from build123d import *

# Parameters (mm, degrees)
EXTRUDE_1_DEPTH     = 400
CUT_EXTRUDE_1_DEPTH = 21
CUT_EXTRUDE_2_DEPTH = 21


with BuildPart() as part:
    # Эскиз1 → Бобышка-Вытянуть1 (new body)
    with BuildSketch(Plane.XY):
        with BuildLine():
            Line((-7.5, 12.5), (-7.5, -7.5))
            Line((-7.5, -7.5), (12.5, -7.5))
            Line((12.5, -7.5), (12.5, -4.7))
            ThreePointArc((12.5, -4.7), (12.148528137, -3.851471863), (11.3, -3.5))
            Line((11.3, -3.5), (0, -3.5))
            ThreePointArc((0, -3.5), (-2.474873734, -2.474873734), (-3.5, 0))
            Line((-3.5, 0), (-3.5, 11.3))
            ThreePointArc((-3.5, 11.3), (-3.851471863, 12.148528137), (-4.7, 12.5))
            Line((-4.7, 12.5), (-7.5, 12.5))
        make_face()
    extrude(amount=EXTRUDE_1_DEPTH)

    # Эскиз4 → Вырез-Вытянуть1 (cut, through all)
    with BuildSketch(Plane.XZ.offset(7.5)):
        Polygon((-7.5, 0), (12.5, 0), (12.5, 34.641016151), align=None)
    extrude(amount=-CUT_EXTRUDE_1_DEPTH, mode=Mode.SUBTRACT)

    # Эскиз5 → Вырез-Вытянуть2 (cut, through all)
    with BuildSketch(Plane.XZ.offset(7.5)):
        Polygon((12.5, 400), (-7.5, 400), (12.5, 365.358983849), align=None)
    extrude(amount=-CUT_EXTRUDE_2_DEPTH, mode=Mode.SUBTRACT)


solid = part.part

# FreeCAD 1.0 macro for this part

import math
import FreeCAD as App
import Part
import Sketcher
from FreeCAD import Vector
Q = App.Units.Quantity

doc = App.newDocument("Part")
body = doc.addObject("PartDesign::Body", "Body")

sketch1 = body.newObject("Sketcher::SketchObject", "Sketch")
sketch1.AttachmentSupport = (doc.getObject("XY_Plane"), [""])
sketch1.MapMode = "FlatFace"
sketch1.addGeometry([
    Part.LineSegment(Vector(-7.5, 12.5, 0), Vector(-7.5, -7.5, 0)),
    Part.LineSegment(Vector(-7.5, -7.5, 0), Vector(12.5, -7.5, 0)),
    Part.LineSegment(Vector(12.5, -7.5, 0), Vector(12.5, -4.7, 0)),
    Part.ArcOfCircle(Part.Circle(Vector(11.3, -4.7, 0), Vector(0, 0, 1), 1.2), math.radians(0), math.radians(90)),
    Part.LineSegment(Vector(11.3, -3.5, 0), Vector(0, -3.5, 0)),
    Part.ArcOfCircle(Part.Circle(Vector(0, 0, 0), Vector(0, 0, 1), 3.5), math.radians(-180), math.radians(-90)),
    Part.LineSegment(Vector(-3.5, 0, 0), Vector(-3.5, 11.3, 0)),
    Part.ArcOfCircle(Part.Circle(Vector(-4.7, 11.3, 0), Vector(0, 0, 1), 1.2), math.radians(0), math.radians(90)),
    Part.LineSegment(Vector(-4.7, 12.5, 0), Vector(-7.5, 12.5, 0)),
], False)
sketch1.addConstraint([
    Sketcher.Constraint("Coincident", 0, 2, 1, 1),
    Sketcher.Constraint("Coincident", 1, 2, 2, 1),
    Sketcher.Constraint("Tangent", 2, 2, 3, 1),
    Sketcher.Constraint("Tangent", 3, 2, 4, 1),
    Sketcher.Constraint("Tangent", 4, 2, 5, 2),
    Sketcher.Constraint("Tangent", 5, 1, 6, 1),
    Sketcher.Constraint("Tangent", 6, 2, 7, 1),
    Sketcher.Constraint("Tangent", 7, 2, 8, 1),
    Sketcher.Constraint("Coincident", 8, 2, 0, 1),
    Sketcher.Constraint("Vertical", 0),
    Sketcher.Constraint("Horizontal", 1),
    Sketcher.Constraint("Vertical", 2),
    Sketcher.Constraint("Horizontal", 4),
    Sketcher.Constraint("Vertical", 6),
    Sketcher.Constraint("Horizontal", 8),
    Sketcher.Constraint("Coincident", 5, 3, -1, 1),
    Sketcher.Constraint("Equal", 3, 7),
    Sketcher.Constraint("Equal", 1, 0),
    Sketcher.Constraint("Equal", 8, 2),
    Sketcher.Constraint("Radius", 3, 1.2),
    Sketcher.Constraint("Radius", 5, 3.5),
    Sketcher.Constraint("DistanceX", 1, 1, 1, 2, 20.0),
    Sketcher.Constraint("DistanceX", 4, 2, 4, 1, 11.3),
])
pad1 = body.newObject("PartDesign::Pad", "Pad")
pad1.Profile = sketch1
pad1.Length = 400

sketch2 = body.newObject("Sketcher::SketchObject", "Sketch001")
sketch2.AttachmentSupport = (doc.getObject("XZ_Plane"), [""])
sketch2.MapMode = "FlatFace"
sketch2.AttachmentOffset = App.Placement(Vector(0, 0, 7.5), App.Rotation())
sketch2.addGeometry([
    Part.LineSegment(Vector(-7.5, 0, 0), Vector(12.5, 0, 0)),
    Part.LineSegment(Vector(12.5, 0, 0), Vector(12.5, 34.641016, 0)),
    Part.LineSegment(Vector(12.5, 34.641016, 0), Vector(-7.5, 0, 0)),
], False)
sketch2.addConstraint([
    Sketcher.Constraint("Coincident", 0, 2, 1, 1),
    Sketcher.Constraint("Coincident", 1, 2, 2, 1),
    Sketcher.Constraint("Coincident", 2, 2, 0, 1),
    Sketcher.Constraint("Horizontal", 0),
    Sketcher.Constraint("Vertical", 1),
    Sketcher.Constraint("PointOnObject", 0, 2, -1),
    Sketcher.Constraint("DistanceX", 0, 1, 0, 2, 20.0),
    Sketcher.Constraint("Angle", 2, Q("-120 deg")),
    Sketcher.Constraint("DistanceX", -1, 1, 0, 2, 12.5),
])
pocket1 = body.newObject("PartDesign::Pocket", "Pocket")
pocket1.Profile = sketch2
pocket1.Type = "ThroughAll"

sketch3 = body.newObject("Sketcher::SketchObject", "Sketch002")
sketch3.AttachmentSupport = (doc.getObject("XZ_Plane"), [""])
sketch3.MapMode = "FlatFace"
sketch3.AttachmentOffset = App.Placement(Vector(0, 0, 7.5), App.Rotation())
sketch3.addGeometry([
    Part.LineSegment(Vector(12.5, 400, 0), Vector(-7.5, 400, 0)),
    Part.LineSegment(Vector(-7.5, 400, 0), Vector(12.5, 365.358984, 0)),
    Part.LineSegment(Vector(12.5, 365.358984, 0), Vector(12.5, 400, 0)),
], False)
sketch3.addConstraint([
    Sketcher.Constraint("Coincident", 0, 2, 1, 1),
    Sketcher.Constraint("Coincident", 1, 2, 2, 1),
    Sketcher.Constraint("Coincident", 2, 2, 0, 1),
    Sketcher.Constraint("Horizontal", 0),
    Sketcher.Constraint("Vertical", 2),
    Sketcher.Constraint("DistanceX", 0, 2, 0, 1, 20.0),
    Sketcher.Constraint("Angle", 1, Q("-60 deg")),
    Sketcher.Constraint("DistanceY", -1, 1, 0, 2, 400.0),
    Sketcher.Constraint("DistanceX", 0, 2, -1, 1, 7.5),
])
pocket2 = body.newObject("PartDesign::Pocket", "Pocket001")
pocket2.Profile = sketch3
pocket2.Type = "ThroughAll"

doc.recompute()
